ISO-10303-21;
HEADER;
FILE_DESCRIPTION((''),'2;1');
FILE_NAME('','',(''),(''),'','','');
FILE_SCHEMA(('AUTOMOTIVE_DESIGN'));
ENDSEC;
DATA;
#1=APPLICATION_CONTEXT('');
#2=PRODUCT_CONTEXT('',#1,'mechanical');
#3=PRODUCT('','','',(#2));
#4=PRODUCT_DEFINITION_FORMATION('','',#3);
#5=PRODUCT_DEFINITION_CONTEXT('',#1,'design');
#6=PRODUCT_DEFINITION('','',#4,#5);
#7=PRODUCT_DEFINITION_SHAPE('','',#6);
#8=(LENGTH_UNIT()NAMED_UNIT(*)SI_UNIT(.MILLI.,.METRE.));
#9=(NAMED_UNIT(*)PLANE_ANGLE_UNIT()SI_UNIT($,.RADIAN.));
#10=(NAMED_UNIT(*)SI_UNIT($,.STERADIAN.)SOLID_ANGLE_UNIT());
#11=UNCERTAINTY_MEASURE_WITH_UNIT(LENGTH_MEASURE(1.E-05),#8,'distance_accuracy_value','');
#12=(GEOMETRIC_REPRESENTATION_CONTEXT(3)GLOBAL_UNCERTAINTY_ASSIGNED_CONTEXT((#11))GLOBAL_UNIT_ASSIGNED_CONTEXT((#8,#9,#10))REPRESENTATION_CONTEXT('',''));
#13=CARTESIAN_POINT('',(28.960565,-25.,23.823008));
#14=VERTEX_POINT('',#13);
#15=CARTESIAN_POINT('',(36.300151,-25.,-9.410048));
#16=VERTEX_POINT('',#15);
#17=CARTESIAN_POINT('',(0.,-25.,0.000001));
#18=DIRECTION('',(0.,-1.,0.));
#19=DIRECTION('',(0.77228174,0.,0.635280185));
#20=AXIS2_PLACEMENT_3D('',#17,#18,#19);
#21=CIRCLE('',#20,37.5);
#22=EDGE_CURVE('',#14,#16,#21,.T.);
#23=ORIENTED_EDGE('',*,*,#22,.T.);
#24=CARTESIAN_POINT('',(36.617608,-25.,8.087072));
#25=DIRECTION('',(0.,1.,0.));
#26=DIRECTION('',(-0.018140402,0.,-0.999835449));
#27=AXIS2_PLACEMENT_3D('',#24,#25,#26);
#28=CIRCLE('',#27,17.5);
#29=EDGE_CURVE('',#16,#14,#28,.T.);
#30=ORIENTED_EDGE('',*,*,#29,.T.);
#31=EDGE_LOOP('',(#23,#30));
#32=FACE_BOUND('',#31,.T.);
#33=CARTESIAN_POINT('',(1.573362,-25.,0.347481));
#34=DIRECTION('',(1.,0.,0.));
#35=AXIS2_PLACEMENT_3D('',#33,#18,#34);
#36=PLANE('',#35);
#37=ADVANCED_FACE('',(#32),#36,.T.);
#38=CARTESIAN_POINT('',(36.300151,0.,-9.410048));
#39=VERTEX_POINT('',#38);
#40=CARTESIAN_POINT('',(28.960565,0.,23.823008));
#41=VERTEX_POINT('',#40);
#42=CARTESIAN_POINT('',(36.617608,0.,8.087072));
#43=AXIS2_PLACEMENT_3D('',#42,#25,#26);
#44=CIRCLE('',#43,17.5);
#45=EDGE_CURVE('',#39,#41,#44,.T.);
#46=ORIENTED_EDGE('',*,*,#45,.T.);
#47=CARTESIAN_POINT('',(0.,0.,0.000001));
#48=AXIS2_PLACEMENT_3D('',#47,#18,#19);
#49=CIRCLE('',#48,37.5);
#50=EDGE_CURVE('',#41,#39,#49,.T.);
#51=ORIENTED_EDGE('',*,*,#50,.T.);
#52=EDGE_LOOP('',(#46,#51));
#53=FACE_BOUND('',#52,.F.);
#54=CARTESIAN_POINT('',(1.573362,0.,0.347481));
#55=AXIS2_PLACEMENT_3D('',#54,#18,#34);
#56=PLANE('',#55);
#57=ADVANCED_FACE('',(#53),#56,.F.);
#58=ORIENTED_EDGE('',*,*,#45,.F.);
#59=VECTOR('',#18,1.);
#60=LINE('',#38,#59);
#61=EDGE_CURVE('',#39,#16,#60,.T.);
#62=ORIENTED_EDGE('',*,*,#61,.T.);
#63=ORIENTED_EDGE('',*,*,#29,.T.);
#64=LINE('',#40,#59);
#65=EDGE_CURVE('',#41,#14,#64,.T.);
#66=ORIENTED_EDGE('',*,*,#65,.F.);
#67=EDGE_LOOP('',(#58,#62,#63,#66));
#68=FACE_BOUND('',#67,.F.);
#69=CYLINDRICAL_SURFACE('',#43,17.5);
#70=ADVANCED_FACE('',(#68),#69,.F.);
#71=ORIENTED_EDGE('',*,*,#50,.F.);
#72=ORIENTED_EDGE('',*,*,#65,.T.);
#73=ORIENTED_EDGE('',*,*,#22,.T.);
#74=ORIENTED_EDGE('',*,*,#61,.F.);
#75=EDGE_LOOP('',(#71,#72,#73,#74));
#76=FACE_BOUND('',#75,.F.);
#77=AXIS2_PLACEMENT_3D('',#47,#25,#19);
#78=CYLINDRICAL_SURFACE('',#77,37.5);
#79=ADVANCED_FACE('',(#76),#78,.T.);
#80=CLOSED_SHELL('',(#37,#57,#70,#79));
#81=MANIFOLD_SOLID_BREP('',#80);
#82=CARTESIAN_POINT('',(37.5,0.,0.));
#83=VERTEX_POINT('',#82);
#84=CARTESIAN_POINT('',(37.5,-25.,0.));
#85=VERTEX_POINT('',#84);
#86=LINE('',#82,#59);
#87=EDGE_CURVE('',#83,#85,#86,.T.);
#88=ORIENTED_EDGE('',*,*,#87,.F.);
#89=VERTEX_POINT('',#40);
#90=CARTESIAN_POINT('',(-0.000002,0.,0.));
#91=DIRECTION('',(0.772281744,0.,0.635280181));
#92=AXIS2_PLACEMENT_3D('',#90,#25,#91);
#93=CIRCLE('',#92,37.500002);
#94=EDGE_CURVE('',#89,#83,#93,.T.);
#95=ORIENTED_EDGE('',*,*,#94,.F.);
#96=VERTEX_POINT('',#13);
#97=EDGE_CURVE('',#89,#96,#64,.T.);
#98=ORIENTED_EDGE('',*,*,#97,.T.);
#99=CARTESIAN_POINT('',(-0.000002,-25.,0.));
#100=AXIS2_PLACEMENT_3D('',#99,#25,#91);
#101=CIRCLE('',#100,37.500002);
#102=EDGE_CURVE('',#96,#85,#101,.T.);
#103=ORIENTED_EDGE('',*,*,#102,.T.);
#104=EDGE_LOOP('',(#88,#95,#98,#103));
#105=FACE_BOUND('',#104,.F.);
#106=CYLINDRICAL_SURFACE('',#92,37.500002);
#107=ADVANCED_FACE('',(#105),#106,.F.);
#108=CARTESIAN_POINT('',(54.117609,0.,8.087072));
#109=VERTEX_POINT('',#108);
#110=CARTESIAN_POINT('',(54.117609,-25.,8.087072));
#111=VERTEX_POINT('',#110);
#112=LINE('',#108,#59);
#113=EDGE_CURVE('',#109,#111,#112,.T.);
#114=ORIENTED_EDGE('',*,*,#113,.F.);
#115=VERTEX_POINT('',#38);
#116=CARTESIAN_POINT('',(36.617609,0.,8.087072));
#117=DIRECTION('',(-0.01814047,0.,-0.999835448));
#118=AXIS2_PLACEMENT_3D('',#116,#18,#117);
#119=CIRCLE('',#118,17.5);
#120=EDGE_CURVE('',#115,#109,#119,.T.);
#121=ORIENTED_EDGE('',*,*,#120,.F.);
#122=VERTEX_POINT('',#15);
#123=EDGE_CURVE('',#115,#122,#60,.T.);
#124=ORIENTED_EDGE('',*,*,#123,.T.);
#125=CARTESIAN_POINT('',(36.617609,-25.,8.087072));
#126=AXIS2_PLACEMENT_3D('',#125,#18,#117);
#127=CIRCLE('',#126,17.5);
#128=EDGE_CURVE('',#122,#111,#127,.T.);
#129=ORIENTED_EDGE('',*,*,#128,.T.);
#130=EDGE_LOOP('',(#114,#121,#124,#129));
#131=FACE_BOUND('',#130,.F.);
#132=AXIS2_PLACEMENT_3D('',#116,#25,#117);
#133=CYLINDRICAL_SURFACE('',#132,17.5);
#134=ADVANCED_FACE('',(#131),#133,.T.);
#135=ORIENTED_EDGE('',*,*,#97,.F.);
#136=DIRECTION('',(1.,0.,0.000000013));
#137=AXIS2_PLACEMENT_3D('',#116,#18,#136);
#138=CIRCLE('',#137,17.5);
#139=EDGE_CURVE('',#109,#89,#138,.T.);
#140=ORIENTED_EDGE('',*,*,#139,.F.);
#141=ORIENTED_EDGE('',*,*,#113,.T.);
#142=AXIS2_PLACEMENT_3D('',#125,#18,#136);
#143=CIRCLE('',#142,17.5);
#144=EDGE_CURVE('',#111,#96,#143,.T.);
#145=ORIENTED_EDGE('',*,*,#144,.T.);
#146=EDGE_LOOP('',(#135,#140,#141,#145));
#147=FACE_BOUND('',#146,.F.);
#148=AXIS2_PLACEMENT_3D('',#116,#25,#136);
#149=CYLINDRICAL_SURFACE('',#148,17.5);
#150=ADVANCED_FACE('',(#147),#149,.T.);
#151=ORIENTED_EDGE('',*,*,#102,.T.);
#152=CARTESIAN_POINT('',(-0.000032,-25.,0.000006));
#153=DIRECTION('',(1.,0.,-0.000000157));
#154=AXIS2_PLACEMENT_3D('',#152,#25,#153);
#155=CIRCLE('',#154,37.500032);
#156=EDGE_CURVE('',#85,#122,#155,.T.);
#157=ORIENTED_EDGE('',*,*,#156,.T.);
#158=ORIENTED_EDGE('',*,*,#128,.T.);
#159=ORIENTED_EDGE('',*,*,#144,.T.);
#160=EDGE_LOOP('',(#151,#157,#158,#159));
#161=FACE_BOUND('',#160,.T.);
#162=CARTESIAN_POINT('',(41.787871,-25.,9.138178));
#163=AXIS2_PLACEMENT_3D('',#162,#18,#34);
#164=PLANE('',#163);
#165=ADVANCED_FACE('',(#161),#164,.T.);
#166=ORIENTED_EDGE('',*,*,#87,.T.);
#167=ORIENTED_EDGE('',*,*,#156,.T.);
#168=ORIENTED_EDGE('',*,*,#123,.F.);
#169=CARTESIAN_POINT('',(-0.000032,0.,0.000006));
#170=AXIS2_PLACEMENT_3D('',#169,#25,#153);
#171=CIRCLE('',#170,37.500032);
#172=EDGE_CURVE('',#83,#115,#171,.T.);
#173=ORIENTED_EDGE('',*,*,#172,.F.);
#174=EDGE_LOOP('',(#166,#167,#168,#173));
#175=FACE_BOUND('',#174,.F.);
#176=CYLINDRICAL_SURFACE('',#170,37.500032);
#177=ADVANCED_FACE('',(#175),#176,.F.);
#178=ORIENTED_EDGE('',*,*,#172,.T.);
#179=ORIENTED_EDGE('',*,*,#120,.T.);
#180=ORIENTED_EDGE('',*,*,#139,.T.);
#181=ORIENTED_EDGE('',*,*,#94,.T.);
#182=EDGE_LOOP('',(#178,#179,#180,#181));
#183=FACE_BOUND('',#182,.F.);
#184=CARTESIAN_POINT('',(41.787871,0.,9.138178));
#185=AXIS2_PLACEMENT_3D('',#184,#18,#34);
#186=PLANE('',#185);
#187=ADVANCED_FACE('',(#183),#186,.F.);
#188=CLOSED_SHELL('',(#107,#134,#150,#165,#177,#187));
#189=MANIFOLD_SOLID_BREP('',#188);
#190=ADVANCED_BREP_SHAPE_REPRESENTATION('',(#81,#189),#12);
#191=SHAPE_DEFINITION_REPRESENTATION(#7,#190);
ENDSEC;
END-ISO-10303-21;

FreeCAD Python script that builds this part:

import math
import FreeCAD as App
import Part
import Sketcher
from FreeCAD import Vector

doc = App.newDocument("Part")
body = doc.addObject("PartDesign::Body", "Body")
body.AllowCompound = True

# Sketch on XZ plane
sketch1 = body.newObject("Sketcher::SketchObject", "Sketch")
sketch1.AttachmentSupport = (doc.getObject("XZ_Plane"), [""])
sketch1.MapMode = "FlatFace"
sketch1.addGeometry([
    Part.ArcOfCircle(Part.Circle(Vector(36.617608, 8.087072, 0), Vector(0, 0, 1), 17.5), math.radians(115.947368), math.radians(268.960574)),  # 0
    Part.ArcOfCircle(Part.Circle(Vector(0, 0.000001, 0), Vector(0, 0, 1), 37.5), math.radians(39.440768), math.radians(345.467174)),  # 1
    Part.ArcOfCircle(Part.Circle(Vector(-0.000002, 0, 0), Vector(0, 0, 1), 37.500002), math.radians(0), math.radians(39.440768)),  # 2
    Part.ArcOfCircle(Part.Circle(Vector(-0.000032, 0.000006, 0), Vector(0, 0, 1), 37.500032), math.radians(-14.532821), math.radians(-0.000009)),  # 3
    Part.ArcOfCircle(Part.Circle(Vector(36.617609, 8.087072, 0), Vector(0, 0, 1), 17.5), math.radians(-91.039429), math.radians(0)),  # 4
    Part.ArcOfCircle(Part.Circle(Vector(36.617609, 8.087072, 0), Vector(0, 0, 1), 17.5), math.radians(0.000001), math.radians(115.94737)),  # 5
], False)
sketch1.addConstraint([
    Sketcher.Constraint("Coincident", 0, 1, 1, 1),
    Sketcher.Constraint("Coincident", 1, 2, 0, 2),
    Sketcher.Constraint("Coincident", 2, 1, 3, 2),
    Sketcher.Constraint("Coincident", 3, 1, 4, 1),
    Sketcher.Constraint("Coincident", 4, 2, 5, 1),
    Sketcher.Constraint("Coincident", 5, 2, 2, 2),
    Sketcher.Constraint("Coincident", 1, 3, -1, 1),
    Sketcher.Constraint("Coincident", 2, 3, -1, 1),
    Sketcher.Constraint("Coincident", 4, 3, 0, 3),
    Sketcher.Constraint("Coincident", 5, 3, 0, 3),
    Sketcher.Constraint("Coincident", 3, 1, 1, 2),
    Sketcher.Constraint("PointOnObject", 2, 1, -1),
    Sketcher.Constraint("Radius", 0, 17.5),
    Sketcher.Constraint("Radius", 1, 37.5),
    Sketcher.Constraint("Radius", 2, 37.500002),
    Sketcher.Constraint("Radius", 3, 37.500032),
    Sketcher.Constraint("DistanceX", -1, 1, 0, 3, 36.617608),
    Sketcher.Constraint("DistanceY", -1, 1, 5, 3, 8.087072),
    Sketcher.Constraint("DistanceY", -1, 1, 4, 2, 8.087072),
])
pad1 = body.newObject("PartDesign::Pad", "Pad")
pad1.Profile = sketch1
pad1.Length = 25

doc.recompute()
